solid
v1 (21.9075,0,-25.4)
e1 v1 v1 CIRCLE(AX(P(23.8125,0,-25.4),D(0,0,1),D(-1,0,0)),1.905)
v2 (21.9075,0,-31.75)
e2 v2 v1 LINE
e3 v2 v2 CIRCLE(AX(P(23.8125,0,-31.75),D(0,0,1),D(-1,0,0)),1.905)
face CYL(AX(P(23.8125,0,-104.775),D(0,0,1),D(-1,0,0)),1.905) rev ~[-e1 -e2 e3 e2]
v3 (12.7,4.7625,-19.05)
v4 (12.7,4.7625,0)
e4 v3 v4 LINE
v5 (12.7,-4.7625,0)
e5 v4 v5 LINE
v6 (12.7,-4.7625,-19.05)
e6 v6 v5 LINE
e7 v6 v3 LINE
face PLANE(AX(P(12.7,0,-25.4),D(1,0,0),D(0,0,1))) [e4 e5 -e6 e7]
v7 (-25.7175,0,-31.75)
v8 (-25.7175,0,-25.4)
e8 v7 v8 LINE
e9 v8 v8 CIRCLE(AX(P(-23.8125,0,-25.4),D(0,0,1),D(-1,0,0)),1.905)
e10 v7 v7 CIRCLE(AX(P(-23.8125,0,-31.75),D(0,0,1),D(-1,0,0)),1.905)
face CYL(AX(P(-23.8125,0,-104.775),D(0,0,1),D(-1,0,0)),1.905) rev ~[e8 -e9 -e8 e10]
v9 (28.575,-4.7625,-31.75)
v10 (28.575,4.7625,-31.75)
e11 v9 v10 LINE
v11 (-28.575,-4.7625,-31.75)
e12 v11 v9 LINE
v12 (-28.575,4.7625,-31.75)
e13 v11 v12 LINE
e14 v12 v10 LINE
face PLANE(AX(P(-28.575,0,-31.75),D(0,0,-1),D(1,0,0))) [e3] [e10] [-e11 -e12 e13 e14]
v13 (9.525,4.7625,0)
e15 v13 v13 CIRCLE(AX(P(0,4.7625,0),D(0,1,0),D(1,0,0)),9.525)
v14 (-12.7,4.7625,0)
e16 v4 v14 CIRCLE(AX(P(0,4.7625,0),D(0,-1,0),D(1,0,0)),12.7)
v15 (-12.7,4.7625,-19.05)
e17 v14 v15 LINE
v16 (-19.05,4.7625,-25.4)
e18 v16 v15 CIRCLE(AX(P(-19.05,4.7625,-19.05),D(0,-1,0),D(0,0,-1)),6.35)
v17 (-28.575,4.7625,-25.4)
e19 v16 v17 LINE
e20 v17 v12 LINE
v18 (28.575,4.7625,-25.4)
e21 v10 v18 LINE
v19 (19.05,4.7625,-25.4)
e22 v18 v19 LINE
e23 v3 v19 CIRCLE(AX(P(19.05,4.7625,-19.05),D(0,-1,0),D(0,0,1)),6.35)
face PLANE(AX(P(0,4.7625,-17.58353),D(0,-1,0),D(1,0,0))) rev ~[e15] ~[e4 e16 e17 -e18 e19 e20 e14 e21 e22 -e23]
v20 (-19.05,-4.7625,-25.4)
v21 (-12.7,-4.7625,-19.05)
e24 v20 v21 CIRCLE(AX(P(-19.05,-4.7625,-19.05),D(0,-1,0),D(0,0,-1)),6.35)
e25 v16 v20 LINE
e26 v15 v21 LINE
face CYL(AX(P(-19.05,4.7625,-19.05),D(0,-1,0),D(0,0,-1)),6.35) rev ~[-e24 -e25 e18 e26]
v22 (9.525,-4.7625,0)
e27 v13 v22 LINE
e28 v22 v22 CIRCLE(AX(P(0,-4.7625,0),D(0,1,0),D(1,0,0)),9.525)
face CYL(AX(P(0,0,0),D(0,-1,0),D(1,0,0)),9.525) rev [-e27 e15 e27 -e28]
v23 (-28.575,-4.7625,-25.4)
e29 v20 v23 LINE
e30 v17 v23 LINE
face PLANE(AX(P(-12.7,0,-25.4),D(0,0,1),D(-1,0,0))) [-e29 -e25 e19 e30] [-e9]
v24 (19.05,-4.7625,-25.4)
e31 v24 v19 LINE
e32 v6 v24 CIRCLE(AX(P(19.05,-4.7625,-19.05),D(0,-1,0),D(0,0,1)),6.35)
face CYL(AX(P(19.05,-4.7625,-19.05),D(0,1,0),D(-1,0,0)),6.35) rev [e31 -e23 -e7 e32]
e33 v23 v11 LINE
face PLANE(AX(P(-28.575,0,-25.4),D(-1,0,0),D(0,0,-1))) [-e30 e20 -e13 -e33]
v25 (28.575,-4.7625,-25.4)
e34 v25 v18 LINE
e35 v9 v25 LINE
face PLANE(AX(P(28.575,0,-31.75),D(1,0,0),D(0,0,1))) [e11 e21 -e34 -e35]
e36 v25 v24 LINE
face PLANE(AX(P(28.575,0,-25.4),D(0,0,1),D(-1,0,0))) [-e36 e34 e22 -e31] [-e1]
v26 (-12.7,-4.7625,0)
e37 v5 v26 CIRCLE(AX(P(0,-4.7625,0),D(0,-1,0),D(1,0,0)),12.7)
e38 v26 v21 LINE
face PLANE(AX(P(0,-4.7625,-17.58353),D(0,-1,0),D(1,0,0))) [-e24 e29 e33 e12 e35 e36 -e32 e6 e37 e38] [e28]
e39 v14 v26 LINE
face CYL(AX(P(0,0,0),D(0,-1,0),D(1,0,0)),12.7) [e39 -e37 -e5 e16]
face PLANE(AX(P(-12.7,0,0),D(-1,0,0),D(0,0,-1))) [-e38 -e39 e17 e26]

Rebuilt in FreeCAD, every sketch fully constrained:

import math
import FreeCAD as App
import Part
import Sketcher
from FreeCAD import Vector
Q = App.Units.Quantity


def edges_at(feature, points):
    """Names of the edges that pass closest to the given points."""
    edges = feature.Shape.Edges
    near = lambda p: min(range(len(edges)), key=lambda i: edges[i].distToShape(Part.Vertex(*p))[0])
    return sorted({f"Edge{near(p) + 1}" for p in points})

doc = App.newDocument("Part")
params = doc.addObject("Spreadsheet::Sheet", "Params")
for row, (alias, value) in enumerate([
    ("sketch1_radius", "0.5 in"),
    ("sketch1_diameter", "0.75 in"),
    ("sketch1_height", "1 in"),
    ("sketch1_width", "2.25 in"),
    ("sketch1_height2", "0.25 in"),
    ("pad1_length", "0.375 in"),
    ("fillet_radius", "0.25 in"),
    ("sketch2_diameter", "0.15 in"),
    ("hole_diameter", "0.15 in"),
], start=1):
    params.set(f"A{row}", alias)
    params.set(f"B{row}", "=" + value)
    params.setAlias(f"B{row}", alias)

body = doc.addObject("PartDesign::Body", "Body")

# Sketch on XZ plane
sketch1 = doc.addObject("Sketcher::SketchObject", "Sketch")
body.addObject(sketch1)
sketch1.AttachmentSupport = (doc.XZ_Plane, [""])
sketch1.MapMode = "FlatFace"
sketch1.addGeometry([
    Part.LineSegment(Vector(12.7, -25.4, 0), Vector(12.7, 0, 0)),  # 0
    Part.ArcOfCircle(Part.Circle(Vector(0, 0, 0), Vector(0, 0, 1), 12.7), math.radians(0), math.radians(180)),  # 1
    Part.LineSegment(Vector(-12.7, 0, 0), Vector(-12.7, -25.4, 0)),  # 2
    Part.LineSegment(Vector(-12.7, -25.4, 0), Vector(-28.575, -25.4, 0)),  # 3
    Part.LineSegment(Vector(-28.575, -25.4, 0), Vector(-28.575, -31.75, 0)),  # 4
    Part.LineSegment(Vector(-28.575, -31.75, 0), Vector(28.575, -31.75, 0)),  # 5
    Part.LineSegment(Vector(28.575, -31.75, 0), Vector(28.575, -25.4, 0)),  # 6
    Part.LineSegment(Vector(28.575, -25.4, 0), Vector(12.7, -25.4, 0)),  # 7
    Part.Circle(Vector(0, 0, 0), Vector(0, 0, 1), 9.525),  # 8
], False)
sketch1.addConstraint([
    Sketcher.Constraint("Tangent", 0, 2, 1, 1),
    Sketcher.Constraint("Tangent", 1, 2, 2, 1),
    Sketcher.Constraint("Coincident", 2, 2, 3, 1),
    Sketcher.Constraint("Coincident", 3, 2, 4, 1),
    Sketcher.Constraint("Coincident", 4, 2, 5, 1),
    Sketcher.Constraint("Coincident", 5, 2, 6, 1),
    Sketcher.Constraint("Coincident", 6, 2, 7, 1),
    Sketcher.Constraint("Coincident", 7, 2, 0, 1),
    Sketcher.Constraint("Vertical", 0),
    Sketcher.Constraint("Vertical", 2),
    Sketcher.Constraint("Horizontal", 3),
    Sketcher.Constraint("Vertical", 4),
    Sketcher.Constraint("Horizontal", 5),
    Sketcher.Constraint("Vertical", 6),
    Sketcher.Constraint("Horizontal", 7),
    Sketcher.Constraint("Coincident", 1, 3, -1, 1),
    Sketcher.Constraint("Coincident", 8, 3, -1, 1),
    Sketcher.Constraint("Symmetric", 3, 2, 6, 2, -2),
    Sketcher.Constraint("Radius", 1, Q("0.5 in")),
    Sketcher.Constraint("Diameter", 8, Q("0.75 in")),
    Sketcher.Constraint("DistanceY", 0, 1, 0, 2, Q("1 in")),
    Sketcher.Constraint("DistanceX", 5, 1, 5, 2, Q("2.25 in")),
    Sketcher.Constraint("DistanceY", 4, 2, 4, 1, Q("0.25 in")),
])
sketch1.setExpression("Constraints[18]", "Params.sketch1_radius")
sketch1.setExpression("Constraints[19]", "Params.sketch1_diameter")
sketch1.setExpression("Constraints[20]", "Params.sketch1_height")
sketch1.setExpression("Constraints[21]", "Params.sketch1_width")
sketch1.setExpression("Constraints[22]", "Params.sketch1_height2")
pad1 = doc.addObject("PartDesign::Pad", "Pad")
body.addObject(pad1)
pad1.Profile = sketch1
pad1.setExpression("Length", "Params.pad1_length")
pad1.Midplane = True
doc.recompute()

fillet = doc.addObject("PartDesign::Fillet", "Fillet")
body.addObject(fillet)
fillet.Base = (pad1, edges_at(pad1, [(-12.7, 0, -25.4), (12.7, 0, -25.4)]))
fillet.setExpression("Radius", "Params.fillet_radius")

# Sketch on XY plane
sketch2 = doc.addObject("Sketcher::SketchObject", "Sketch001")
body.addObject(sketch2)
sketch2.AttachmentSupport = (doc.XY_Plane, [""])
sketch2.MapMode = "FlatFace"
sketch2.AttachmentOffset = App.Placement(Vector(0, 0, -1.25 * 25.4), App.Rotation())
sketch2.addGeometry([
    Part.Circle(Vector(-23.8125, 0, 0), Vector(0, 0, 1), 1.905),
    Part.Circle(Vector(23.8125, 0, 0), Vector(0, 0, 1), 1.905),
], False)
sketch2.addConstraint([
    Sketcher.Constraint("Equal", 0, 1),
    Sketcher.Constraint("Symmetric", 0, 3, 1, 3, -1, 1),
    Sketcher.Constraint("PointOnObject", 0, 3, -1),
    Sketcher.Constraint("Diameter", 0, Q("0.15 in")),
    Sketcher.Constraint("DistanceX", 0, 3, -1, 1, Q("0.9375 in")),
])
sketch2.setExpression("Constraints[3]", "Params.sketch2_diameter")
doc.recompute()
hole = doc.addObject("PartDesign::Hole", "Hole")
body.addObject(hole)
hole.Profile = sketch2
hole.ThreadType = "None"
hole.setExpression("Diameter", "Params.hole_diameter")
hole.DepthType = "ThroughAll"
hole.Reversed = True

doc.recompute()
